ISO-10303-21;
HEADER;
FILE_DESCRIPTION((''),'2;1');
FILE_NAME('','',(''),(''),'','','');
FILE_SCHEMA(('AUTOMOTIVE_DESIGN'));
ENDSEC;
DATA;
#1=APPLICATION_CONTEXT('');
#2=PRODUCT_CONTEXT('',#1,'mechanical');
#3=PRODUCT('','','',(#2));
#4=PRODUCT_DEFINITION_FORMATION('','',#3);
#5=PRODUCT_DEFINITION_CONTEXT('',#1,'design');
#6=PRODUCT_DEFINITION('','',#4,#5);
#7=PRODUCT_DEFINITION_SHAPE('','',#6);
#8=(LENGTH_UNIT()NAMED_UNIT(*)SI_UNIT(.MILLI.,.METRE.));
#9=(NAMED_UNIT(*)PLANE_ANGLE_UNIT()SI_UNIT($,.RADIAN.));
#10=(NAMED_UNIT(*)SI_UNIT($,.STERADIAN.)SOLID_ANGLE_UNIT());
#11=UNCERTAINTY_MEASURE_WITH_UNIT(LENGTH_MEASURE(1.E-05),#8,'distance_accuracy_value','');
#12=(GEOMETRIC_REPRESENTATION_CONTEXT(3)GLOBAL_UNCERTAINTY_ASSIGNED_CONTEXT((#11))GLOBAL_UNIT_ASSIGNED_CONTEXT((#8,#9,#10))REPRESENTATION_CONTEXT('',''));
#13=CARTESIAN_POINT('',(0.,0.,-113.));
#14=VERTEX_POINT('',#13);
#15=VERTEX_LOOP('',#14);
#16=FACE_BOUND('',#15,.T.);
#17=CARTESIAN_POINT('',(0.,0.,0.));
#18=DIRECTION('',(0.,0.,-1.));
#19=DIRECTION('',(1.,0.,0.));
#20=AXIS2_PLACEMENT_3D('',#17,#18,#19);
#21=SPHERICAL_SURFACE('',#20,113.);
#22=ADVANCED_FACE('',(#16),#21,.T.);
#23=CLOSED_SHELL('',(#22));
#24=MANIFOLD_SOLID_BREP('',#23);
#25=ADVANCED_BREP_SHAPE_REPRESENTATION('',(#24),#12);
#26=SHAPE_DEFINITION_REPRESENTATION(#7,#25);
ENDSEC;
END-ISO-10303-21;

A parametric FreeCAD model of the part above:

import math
import FreeCAD as App
import Part
import Sketcher

V = App.Vector

doc = App.newDocument("Part")
body = doc.addObject("PartDesign::Body", "Body")

# Sketch on XZ plane
sketch1 = body.newObject("Sketcher::SketchObject", "Sketch")
sketch1.AttachmentSupport = (doc.getObject("XZ_Plane"), [""])
sketch1.MapMode = "FlatFace"
sketch1.addGeometry([
    Part.LineSegment(V(0, -113, 0), V(0, 113, 0)),
    Part.ArcOfCircle(Part.Circle(V(0, 0, 0), V(0, 0, 1), 113), math.radians(-90), math.radians(90)),
], False)
sketch1.addConstraint([
    Sketcher.Constraint("Coincident", 0, 1, 1, 1),
    Sketcher.Constraint("Coincident", 1, 2, 0, 2),
    Sketcher.Constraint("Vertical", 0),
    Sketcher.Constraint("Coincident", 1, 3, -1, 1),
    Sketcher.Constraint("PointOnObject", 0, 1, -2),
    Sketcher.Constraint("Radius", 1, 113.0),
])
revolution = body.newObject("PartDesign::Revolution", "Revolution")
revolution.Profile = sketch1
revolution.ReferenceAxis = (sketch1, ["V_Axis"])
revolution.Angle = 360

doc.recompute()
